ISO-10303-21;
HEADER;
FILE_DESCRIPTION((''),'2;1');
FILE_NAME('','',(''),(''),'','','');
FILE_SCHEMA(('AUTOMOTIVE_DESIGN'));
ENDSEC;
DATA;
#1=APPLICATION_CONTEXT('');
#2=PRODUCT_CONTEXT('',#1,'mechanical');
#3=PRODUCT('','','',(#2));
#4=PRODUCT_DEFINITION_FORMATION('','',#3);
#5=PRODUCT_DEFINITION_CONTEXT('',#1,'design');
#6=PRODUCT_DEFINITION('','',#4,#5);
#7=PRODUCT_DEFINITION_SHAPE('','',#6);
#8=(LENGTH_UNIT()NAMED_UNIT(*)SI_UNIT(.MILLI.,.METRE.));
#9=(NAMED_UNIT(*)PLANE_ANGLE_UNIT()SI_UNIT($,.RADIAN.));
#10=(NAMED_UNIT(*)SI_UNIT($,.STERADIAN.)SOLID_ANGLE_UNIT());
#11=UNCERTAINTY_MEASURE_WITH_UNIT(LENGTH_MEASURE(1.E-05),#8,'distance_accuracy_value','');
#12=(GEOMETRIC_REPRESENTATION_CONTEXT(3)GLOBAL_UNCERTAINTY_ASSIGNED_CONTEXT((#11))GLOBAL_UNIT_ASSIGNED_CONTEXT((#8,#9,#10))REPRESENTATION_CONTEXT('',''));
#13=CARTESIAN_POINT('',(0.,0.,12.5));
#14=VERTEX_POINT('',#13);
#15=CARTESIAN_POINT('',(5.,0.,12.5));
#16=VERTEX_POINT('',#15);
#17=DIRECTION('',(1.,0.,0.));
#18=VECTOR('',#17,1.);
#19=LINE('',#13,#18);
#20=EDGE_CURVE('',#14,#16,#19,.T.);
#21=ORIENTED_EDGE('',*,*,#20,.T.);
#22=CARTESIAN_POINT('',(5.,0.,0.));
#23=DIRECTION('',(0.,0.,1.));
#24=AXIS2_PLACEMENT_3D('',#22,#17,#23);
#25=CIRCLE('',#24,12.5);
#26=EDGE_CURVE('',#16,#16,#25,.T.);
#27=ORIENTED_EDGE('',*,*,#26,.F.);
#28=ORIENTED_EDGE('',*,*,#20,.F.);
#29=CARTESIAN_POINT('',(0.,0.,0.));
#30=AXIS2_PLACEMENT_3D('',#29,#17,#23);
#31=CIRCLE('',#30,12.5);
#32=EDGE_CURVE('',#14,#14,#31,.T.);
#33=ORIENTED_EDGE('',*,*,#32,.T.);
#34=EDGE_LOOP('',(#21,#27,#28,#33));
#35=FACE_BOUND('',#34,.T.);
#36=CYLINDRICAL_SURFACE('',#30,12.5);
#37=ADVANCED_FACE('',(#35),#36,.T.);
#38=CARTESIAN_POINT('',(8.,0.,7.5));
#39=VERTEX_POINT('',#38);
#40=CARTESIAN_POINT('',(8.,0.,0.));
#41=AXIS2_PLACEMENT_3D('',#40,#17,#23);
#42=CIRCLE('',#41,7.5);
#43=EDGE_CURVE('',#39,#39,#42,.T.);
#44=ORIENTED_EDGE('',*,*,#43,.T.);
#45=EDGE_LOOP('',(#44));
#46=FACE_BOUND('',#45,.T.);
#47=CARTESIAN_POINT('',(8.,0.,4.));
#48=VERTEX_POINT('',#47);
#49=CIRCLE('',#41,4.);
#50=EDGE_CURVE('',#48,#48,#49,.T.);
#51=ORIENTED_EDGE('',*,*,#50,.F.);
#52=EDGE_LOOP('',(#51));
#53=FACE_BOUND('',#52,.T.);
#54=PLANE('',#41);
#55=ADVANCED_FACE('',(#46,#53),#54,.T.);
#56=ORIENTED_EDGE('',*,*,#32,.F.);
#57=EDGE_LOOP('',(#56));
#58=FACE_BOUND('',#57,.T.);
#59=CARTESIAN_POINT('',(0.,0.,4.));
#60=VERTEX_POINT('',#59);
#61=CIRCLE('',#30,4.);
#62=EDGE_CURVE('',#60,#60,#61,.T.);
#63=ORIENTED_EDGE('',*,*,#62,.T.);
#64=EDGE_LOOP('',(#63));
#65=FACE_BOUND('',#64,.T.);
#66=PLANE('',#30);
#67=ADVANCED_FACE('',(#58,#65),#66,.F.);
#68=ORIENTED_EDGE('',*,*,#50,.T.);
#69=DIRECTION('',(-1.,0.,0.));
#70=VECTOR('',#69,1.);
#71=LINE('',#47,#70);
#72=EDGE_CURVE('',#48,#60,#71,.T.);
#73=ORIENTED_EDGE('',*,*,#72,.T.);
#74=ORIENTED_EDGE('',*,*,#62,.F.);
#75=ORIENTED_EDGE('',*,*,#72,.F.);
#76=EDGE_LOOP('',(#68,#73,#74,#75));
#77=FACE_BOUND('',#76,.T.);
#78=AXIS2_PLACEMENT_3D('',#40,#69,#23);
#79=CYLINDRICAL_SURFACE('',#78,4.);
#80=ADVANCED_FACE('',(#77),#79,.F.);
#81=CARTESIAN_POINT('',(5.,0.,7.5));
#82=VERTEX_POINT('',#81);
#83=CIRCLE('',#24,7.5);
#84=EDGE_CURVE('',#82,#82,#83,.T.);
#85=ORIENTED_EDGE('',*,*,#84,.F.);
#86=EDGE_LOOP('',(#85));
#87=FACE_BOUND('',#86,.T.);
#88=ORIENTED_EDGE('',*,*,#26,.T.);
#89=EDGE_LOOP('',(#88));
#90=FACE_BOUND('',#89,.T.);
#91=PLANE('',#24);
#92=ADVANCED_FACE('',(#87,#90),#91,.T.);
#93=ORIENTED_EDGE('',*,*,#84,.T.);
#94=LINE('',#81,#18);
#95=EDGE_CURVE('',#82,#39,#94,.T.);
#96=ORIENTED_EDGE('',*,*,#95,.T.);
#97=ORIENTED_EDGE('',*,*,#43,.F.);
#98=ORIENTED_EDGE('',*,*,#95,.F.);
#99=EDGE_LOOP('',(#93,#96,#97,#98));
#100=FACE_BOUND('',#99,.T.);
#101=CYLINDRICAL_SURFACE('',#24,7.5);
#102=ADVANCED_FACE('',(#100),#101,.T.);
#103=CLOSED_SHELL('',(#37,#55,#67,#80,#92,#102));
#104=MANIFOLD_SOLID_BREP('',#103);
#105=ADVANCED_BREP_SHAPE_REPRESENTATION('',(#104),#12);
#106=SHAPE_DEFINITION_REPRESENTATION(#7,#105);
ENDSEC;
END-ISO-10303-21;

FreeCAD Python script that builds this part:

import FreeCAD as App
import Part
import Sketcher

V = App.Vector
Q = App.Units.Quantity


def add_polygon(sketch, points):
    """Adds a closed chain of lines whose ends are joined by coincident constraints."""
    first, n = sketch.GeometryCount, len(points)
    for a, b in zip(points, points[1:] + points[:1]):
        sketch.addGeometry(Part.LineSegment(App.Vector(*a, 0), App.Vector(*b, 0)), False)
    for i in range(n):
        sketch.addConstraint(Sketcher.Constraint("Coincident", first + i, 2, first + (i + 1) % n, 1))

doc = App.newDocument("Part")
body = doc.addObject("PartDesign::Body", "Body")

# Sketch on XZ plane
sketch1 = body.newObject("Sketcher::SketchObject", "Sketch")
sketch1.AttachmentSupport = (doc.getObject("XZ_Plane"), [""])
sketch1.MapMode = "FlatFace"
add_polygon(sketch1, [(0, -12.5), (0, -4), (8, -4), (8, -7.5), (5, -7.5), (5, -12.5)])  # lines 0-5
sketch1.addConstraint(Sketcher.Constraint("Vertical", 0))
sketch1.addConstraint(Sketcher.Constraint("Horizontal", 1))
sketch1.addConstraint(Sketcher.Constraint("Vertical", 2))
sketch1.addConstraint(Sketcher.Constraint("Horizontal", 3))
sketch1.addConstraint(Sketcher.Constraint("Vertical", 4))
sketch1.addConstraint(Sketcher.Constraint("Horizontal", 5))
sketch1.addConstraint(Sketcher.Constraint("PointOnObject", 0, 2, -2))
sketch1.addConstraint(Sketcher.Constraint("Equal", 5, 4))
sketch1.addConstraint(Sketcher.Constraint("DistanceX", 1, 1, 1, 2, Q("8 mm")))
sketch1.addConstraint(Sketcher.Constraint("DistanceX", 3, 2, 3, 1, Q("3 mm")))
sketch1.addConstraint(Sketcher.Constraint("DistanceY", 0, 1, 0, 2, Q("8.5 mm")))
sketch1.addConstraint(Sketcher.Constraint("DistanceY", 0, 2, -1, 1, Q("4 mm")))
revolution = body.newObject("PartDesign::Revolution", "Revolution")
revolution.Profile = sketch1
revolution.ReferenceAxis = (sketch1, ["H_Axis"])
revolution.Angle = 360

doc.recompute()
